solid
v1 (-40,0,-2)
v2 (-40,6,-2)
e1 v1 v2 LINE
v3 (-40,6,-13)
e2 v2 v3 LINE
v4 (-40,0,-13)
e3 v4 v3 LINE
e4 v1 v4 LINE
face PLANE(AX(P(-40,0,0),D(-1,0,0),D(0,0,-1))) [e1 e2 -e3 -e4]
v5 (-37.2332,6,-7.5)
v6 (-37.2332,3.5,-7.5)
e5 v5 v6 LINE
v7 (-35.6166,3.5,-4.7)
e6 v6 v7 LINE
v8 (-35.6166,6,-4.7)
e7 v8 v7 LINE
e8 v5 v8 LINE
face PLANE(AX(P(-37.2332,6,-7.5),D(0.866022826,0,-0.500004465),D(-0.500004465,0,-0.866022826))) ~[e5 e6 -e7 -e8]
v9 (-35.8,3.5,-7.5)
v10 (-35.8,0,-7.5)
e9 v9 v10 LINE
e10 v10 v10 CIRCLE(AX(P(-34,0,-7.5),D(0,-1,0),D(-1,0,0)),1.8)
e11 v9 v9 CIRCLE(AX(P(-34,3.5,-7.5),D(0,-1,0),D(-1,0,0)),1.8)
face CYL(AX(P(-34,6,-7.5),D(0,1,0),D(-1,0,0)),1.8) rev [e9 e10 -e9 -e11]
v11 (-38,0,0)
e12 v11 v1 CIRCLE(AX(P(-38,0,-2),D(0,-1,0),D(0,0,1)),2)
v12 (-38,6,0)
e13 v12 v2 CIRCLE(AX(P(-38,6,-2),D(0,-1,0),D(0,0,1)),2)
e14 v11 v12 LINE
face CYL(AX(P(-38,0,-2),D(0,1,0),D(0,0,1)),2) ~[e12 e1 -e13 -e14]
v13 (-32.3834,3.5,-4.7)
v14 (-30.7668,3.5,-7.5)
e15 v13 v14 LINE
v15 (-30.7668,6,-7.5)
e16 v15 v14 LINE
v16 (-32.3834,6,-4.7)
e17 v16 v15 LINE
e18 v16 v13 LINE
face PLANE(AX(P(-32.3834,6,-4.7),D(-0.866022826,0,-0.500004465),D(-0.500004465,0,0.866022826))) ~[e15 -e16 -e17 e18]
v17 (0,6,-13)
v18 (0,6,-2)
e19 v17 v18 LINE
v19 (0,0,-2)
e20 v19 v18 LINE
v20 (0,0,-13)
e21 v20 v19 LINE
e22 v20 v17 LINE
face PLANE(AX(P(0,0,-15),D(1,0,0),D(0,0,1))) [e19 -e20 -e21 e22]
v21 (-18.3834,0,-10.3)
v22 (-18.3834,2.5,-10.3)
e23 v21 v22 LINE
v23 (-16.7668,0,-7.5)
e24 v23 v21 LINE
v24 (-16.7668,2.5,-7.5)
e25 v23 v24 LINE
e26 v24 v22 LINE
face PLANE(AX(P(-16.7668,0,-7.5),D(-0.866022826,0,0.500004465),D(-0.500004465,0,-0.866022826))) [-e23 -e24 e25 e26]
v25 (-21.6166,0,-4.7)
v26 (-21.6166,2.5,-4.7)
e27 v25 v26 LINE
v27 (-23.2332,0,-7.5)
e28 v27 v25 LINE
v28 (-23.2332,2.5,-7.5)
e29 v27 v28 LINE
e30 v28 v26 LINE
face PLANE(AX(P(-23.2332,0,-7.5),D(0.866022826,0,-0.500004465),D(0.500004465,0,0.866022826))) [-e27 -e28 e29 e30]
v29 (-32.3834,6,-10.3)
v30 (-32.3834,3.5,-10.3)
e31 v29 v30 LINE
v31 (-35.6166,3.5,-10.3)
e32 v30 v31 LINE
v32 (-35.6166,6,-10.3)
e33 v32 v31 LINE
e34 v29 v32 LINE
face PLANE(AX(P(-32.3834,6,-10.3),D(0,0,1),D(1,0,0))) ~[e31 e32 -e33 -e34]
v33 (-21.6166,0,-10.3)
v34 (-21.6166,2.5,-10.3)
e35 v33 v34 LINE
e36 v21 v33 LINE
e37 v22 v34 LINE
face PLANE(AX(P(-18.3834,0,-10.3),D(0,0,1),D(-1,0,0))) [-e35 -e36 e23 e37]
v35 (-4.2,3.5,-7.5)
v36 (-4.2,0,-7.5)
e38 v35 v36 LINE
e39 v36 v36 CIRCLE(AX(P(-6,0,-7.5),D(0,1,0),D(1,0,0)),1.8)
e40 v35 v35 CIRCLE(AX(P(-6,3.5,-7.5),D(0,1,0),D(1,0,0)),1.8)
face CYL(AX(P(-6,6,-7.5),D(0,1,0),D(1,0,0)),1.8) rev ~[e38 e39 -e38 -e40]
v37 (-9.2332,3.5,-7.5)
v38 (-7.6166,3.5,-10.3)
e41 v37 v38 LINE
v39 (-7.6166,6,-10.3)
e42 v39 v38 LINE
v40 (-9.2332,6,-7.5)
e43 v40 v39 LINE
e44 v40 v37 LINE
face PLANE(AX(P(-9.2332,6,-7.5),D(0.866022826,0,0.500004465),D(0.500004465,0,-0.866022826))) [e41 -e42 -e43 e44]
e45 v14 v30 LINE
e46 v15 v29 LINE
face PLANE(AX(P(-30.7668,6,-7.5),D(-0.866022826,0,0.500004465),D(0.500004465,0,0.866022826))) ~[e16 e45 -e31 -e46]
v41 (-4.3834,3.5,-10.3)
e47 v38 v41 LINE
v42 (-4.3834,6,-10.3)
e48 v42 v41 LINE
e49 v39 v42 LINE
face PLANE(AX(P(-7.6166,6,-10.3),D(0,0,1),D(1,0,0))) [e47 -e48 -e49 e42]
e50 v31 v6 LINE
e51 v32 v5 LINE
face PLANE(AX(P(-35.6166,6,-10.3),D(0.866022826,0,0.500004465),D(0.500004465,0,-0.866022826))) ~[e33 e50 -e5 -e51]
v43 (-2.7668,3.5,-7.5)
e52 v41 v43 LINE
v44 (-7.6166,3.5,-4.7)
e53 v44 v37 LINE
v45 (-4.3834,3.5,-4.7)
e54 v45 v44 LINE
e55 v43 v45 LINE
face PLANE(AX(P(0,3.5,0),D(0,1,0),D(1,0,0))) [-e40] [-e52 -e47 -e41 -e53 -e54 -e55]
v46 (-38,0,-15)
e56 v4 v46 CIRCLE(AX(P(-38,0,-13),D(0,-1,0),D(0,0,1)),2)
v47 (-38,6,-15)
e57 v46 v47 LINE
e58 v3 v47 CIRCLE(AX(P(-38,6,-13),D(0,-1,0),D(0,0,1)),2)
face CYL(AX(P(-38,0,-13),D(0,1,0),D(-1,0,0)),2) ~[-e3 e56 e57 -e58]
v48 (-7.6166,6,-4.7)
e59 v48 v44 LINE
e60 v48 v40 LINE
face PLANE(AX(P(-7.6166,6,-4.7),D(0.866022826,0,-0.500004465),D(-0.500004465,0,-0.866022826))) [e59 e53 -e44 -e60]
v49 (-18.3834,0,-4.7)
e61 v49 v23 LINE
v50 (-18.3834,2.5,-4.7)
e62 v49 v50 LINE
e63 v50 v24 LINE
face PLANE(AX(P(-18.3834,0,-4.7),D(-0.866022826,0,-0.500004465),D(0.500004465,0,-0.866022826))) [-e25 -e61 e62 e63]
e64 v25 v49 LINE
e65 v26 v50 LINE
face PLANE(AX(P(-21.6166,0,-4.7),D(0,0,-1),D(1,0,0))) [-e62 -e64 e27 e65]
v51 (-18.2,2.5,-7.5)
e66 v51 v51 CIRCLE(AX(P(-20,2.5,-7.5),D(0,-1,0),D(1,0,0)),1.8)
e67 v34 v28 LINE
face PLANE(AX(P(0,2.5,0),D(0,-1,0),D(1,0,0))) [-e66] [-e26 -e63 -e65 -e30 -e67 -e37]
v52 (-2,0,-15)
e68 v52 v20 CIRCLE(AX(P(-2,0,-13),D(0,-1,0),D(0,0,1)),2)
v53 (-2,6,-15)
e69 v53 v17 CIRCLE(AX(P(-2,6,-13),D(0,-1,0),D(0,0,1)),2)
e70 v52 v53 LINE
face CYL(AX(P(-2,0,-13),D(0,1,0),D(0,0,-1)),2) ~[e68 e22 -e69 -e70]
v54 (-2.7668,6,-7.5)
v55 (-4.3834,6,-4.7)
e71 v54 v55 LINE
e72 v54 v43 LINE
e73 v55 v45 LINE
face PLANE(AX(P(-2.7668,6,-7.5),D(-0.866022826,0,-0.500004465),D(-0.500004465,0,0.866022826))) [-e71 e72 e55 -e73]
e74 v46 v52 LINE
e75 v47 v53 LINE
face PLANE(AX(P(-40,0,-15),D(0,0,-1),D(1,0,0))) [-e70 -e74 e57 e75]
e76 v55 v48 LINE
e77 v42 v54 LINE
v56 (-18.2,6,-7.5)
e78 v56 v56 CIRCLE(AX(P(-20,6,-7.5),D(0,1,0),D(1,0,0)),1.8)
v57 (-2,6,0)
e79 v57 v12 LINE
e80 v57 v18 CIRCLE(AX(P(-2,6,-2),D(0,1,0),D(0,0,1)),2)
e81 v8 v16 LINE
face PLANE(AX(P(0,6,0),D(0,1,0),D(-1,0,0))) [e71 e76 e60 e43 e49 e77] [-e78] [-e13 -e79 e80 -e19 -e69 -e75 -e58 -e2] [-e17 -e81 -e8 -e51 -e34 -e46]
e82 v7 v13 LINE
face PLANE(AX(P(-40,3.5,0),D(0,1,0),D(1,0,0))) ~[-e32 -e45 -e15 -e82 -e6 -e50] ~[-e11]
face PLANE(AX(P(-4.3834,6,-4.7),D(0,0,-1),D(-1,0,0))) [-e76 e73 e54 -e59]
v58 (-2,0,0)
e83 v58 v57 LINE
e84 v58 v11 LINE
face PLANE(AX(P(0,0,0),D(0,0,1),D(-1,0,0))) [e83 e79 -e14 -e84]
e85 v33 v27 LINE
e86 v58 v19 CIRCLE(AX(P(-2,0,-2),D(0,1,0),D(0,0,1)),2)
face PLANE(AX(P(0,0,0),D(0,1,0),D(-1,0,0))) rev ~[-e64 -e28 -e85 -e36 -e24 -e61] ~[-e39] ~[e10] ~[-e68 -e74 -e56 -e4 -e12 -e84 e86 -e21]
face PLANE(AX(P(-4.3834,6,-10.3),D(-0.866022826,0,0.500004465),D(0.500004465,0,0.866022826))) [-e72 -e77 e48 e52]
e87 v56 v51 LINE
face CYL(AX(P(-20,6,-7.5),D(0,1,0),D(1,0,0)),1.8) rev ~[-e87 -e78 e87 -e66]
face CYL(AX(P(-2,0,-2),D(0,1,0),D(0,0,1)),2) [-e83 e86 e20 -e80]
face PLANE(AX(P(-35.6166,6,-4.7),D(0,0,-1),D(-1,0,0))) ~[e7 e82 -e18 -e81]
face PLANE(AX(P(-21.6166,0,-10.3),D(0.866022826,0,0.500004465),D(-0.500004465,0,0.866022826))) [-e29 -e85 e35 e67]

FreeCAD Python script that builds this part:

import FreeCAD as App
import Part
import Sketcher
from FreeCAD import Vector
Q = App.Units.Quantity


def edges_at(feature, points):
    """Names of the edges that pass closest to the given points."""
    edges = feature.Shape.Edges
    near = lambda p: min(range(len(edges)), key=lambda i: edges[i].distToShape(Part.Vertex(*p))[0])
    return sorted({f"Edge{near(p) + 1}" for p in points})

doc = App.newDocument("Part")
params = doc.addObject("Spreadsheet::Sheet", "Params")
for row, (alias, value) in enumerate([
    ("sketch1_width", "40 mm"),
    ("sketch1_height", "15 mm"),
    ("pad1_length", "6 mm"),
    ("fillet_radius", "2 mm"),
    ("sketch2_diameter", "3.6 mm"),
    ("pocket1_length", "6 mm"),
    ("sketch3_diameter", "3.6 mm"),
    ("pocket2_length", "2.5 mm"),
    ("sketch4_diameter", "3.6 mm"),
    ("pocket3_length", "6 mm"),
    ("sketch5_diameter", "3.6 mm"),
    ("pocket4_length", "2.5 mm"),
], start=1):
    params.set(f"A{row}", alias)
    params.set(f"B{row}", "=" + value)
    params.setAlias(f"B{row}", alias)

body = doc.addObject("PartDesign::Body", "Body")

# Sketch on XZ plane
sketch1 = body.newObject("Sketcher::SketchObject", "Sketch")
sketch1.AttachmentSupport = (doc.getObject("XZ_Plane"), [""])
sketch1.MapMode = "FlatFace"
sketch1.addGeometry(Part.LineSegment(Vector(-40, 0, 0), Vector(0, 0, 0)), False)
sketch1.addGeometry(Part.LineSegment(Vector(0, 0, 0), Vector(0, -15, 0)), False)
sketch1.addGeometry(Part.LineSegment(Vector(0, -15, 0), Vector(-40, -15, 0)), False)
sketch1.addGeometry(Part.LineSegment(Vector(-40, -15, 0), Vector(-40, 0, 0)), False)
sketch1.addConstraint(Sketcher.Constraint("Coincident", 0, 2, 1, 1))
sketch1.addConstraint(Sketcher.Constraint("Coincident", 1, 2, 2, 1))
sketch1.addConstraint(Sketcher.Constraint("Coincident", 2, 2, 3, 1))
sketch1.addConstraint(Sketcher.Constraint("Coincident", 3, 2, 0, 1))
sketch1.addConstraint(Sketcher.Constraint("Horizontal", 0))
sketch1.addConstraint(Sketcher.Constraint("Vertical", 1))
sketch1.addConstraint(Sketcher.Constraint("Horizontal", 2))
sketch1.addConstraint(Sketcher.Constraint("Vertical", 3))
sketch1.addConstraint(Sketcher.Constraint("Coincident", 0, 2, -1, 1))
sketch1.addConstraint(Sketcher.Constraint("DistanceX", 0, 1, 0, 2, Q("40 mm")))
sketch1.addConstraint(Sketcher.Constraint("DistanceY", 1, 2, 1, 1, Q("15 mm")))
sketch1.setExpression("Constraints[9]", "Params.sketch1_width")
sketch1.setExpression("Constraints[10]", "Params.sketch1_height")
pad1 = body.newObject("PartDesign::Pad", "Pad")
pad1.Profile = sketch1
pad1.setExpression("Length", "Params.pad1_length")
pad1.Reversed = True
doc.recompute()

fillet = body.newObject("PartDesign::Fillet", "Fillet")
fillet.Base = (pad1, edges_at(pad1, [
    (0, 3, 0),
    (0, 3, -15),
    (-40, 3, -15),
    (-40, 3, 0),
]))
fillet.setExpression("Radius", "Params.fillet_radius")

# Sketch on XZ plane
sketch2 = body.newObject("Sketcher::SketchObject", "Sketch001")
sketch2.AttachmentSupport = (doc.getObject("XZ_Plane"), [""])
sketch2.MapMode = "FlatFace"
sketch2.AttachmentOffset = App.Placement(Vector(0, 0, -6), App.Rotation())
sketch2.addGeometry(Part.Circle(Vector(-6, -7.5, 0), Vector(0, 0, 1), 1.8), False)
sketch2.addConstraint(Sketcher.Constraint("Diameter", 0, Q("3.6 mm")))
sketch2.addConstraint(Sketcher.Constraint("DistanceX", 0, 3, -1, 1, Q("6 mm")))
sketch2.addConstraint(Sketcher.Constraint("DistanceY", 0, 3, -1, 1, Q("7.5 mm")))
sketch2.setExpression("Constraints[0]", "Params.sketch2_diameter")
pocket1 = body.newObject("PartDesign::Pocket", "Pocket")
pocket1.Profile = sketch2
pocket1.setExpression("Length", "Params.pocket1_length")
pocket1.Reversed = True

# Sketch on XZ plane
sketch3 = body.newObject("Sketcher::SketchObject", "Sketch002")
sketch3.AttachmentSupport = (doc.getObject("XZ_Plane"), [""])
sketch3.MapMode = "FlatFace"
sketch3.AttachmentOffset = App.Placement(Vector(0, 0, -6), App.Rotation())
sketch3.addGeometry(Part.LineSegment(Vector(-9.2, -7.5, 0), Vector(-7.6, -4.7, 0)), False)
sketch3.addGeometry(Part.LineSegment(Vector(-7.6, -4.7, 0), Vector(-4.4, -4.7, 0)), False)
sketch3.addGeometry(Part.LineSegment(Vector(-4.4, -4.7, 0), Vector(-2.8, -7.5, 0)), False)
sketch3.addGeometry(Part.LineSegment(Vector(-2.8, -7.5, 0), Vector(-4.4, -10.3, 0)), False)
sketch3.addGeometry(Part.LineSegment(Vector(-4.4, -10.3, 0), Vector(-7.6, -10.3, 0)), False)
sketch3.addGeometry(Part.LineSegment(Vector(-7.6, -10.3, 0), Vector(-9.2, -7.5, 0)), False)
sketch3.addGeometry(Part.Circle(Vector(-6, -7.5, 0), Vector(0, 0, 1), 1.8), False)
sketch3.addConstraint(Sketcher.Constraint("Coincident", 0, 2, 1, 1))
sketch3.addConstraint(Sketcher.Constraint("Coincident", 1, 2, 2, 1))
sketch3.addConstraint(Sketcher.Constraint("Coincident", 2, 2, 3, 1))
sketch3.addConstraint(Sketcher.Constraint("Coincident", 3, 2, 4, 1))
sketch3.addConstraint(Sketcher.Constraint("Coincident", 4, 2, 5, 1))
sketch3.addConstraint(Sketcher.Constraint("Coincident", 5, 2, 0, 1))
sketch3.addConstraint(Sketcher.Constraint("Horizontal", 1))
sketch3.addConstraint(Sketcher.Constraint("Horizontal", 4))
sketch3.addConstraint(Sketcher.Constraint("Parallel", 0, 3))
sketch3.addConstraint(Sketcher.Constraint("Parallel", 2, 5))
sketch3.addConstraint(Sketcher.Constraint("Horizontal", 6, 3, 2, 2))
sketch3.addConstraint(Sketcher.Constraint("Horizontal", 2, 2, 5, 2))
sketch3.addConstraint(Sketcher.Constraint("Vertical", 1, 2, 3, 2))
sketch3.addConstraint(Sketcher.Constraint("Vertical", 0, 2, 4, 2))
sketch3.addConstraint(Sketcher.Constraint("Diameter", 6, Q("3.6 mm")))
sketch3.addConstraint(Sketcher.Constraint("Angle", 0, Q("59.9997 deg")))
sketch3.addConstraint(Sketcher.Constraint("DistanceX", 6, 3, -1, 1, Q("6 mm")))
sketch3.addConstraint(Sketcher.Constraint("DistanceY", 6, 3, -1, 1, Q("7.5 mm")))
sketch3.addConstraint(Sketcher.Constraint("DistanceY", 0, 2, -1, 1, Q("4.7 mm")))
sketch3.addConstraint(Sketcher.Constraint("DistanceX", 1, 1, 1, 2, Q("3.2332 mm")))
sketch3.addConstraint(Sketcher.Constraint("DistanceX", 0, 2, -1, 1, Q("7.6166 mm")))
sketch3.setExpression("Constraints[14]", "Params.sketch3_diameter")
pocket2 = body.newObject("PartDesign::Pocket", "Pocket001")
pocket2.Profile = sketch3
pocket2.setExpression("Length", "Params.pocket2_length")
pocket2.Reversed = True

# Sketch on XZ plane
sketch4 = body.newObject("Sketcher::SketchObject", "Sketch003")
sketch4.AttachmentSupport = (doc.getObject("XZ_Plane"), [""])
sketch4.MapMode = "FlatFace"
sketch4.AttachmentOffset = App.Placement(Vector(0, 0, -6), App.Rotation())
sketch4.addGeometry(Part.Circle(Vector(-20, -7.5, 0), Vector(0, 0, 1), 1.8), False)
sketch4.addConstraint(Sketcher.Constraint("Diameter", 0, Q("3.6 mm")))
sketch4.addConstraint(Sketcher.Constraint("DistanceX", 0, 3, -1, 1, Q("20 mm")))
sketch4.addConstraint(Sketcher.Constraint("DistanceY", 0, 3, -1, 1, Q("7.5 mm")))
sketch4.setExpression("Constraints[0]", "Params.sketch4_diameter")
pocket3 = body.newObject("PartDesign::Pocket", "Pocket002")
pocket3.Profile = sketch4
pocket3.setExpression("Length", "Params.pocket3_length")
pocket3.Reversed = True

# Sketch on XZ plane
sketch5 = body.newObject("Sketcher::SketchObject", "Sketch004")
sketch5.AttachmentSupport = (doc.getObject("XZ_Plane"), [""])
sketch5.MapMode = "FlatFace"
sketch5.addGeometry(Part.LineSegment(Vector(-23.2, -7.5, 0), Vector(-21.6, -10.3, 0)), False)
sketch5.addGeometry(Part.LineSegment(Vector(-21.6, -10.3, 0), Vector(-18.4, -10.3, 0)), False)
sketch5.addGeometry(Part.LineSegment(Vector(-18.4, -10.3, 0), Vector(-16.8, -7.5, 0)), False)
sketch5.addGeometry(Part.LineSegment(Vector(-16.8, -7.5, 0), Vector(-18.4, -4.7, 0)), False)
sketch5.addGeometry(Part.LineSegment(Vector(-18.4, -4.7, 0), Vector(-21.6, -4.7, 0)), False)
sketch5.addGeometry(Part.LineSegment(Vector(-21.6, -4.7, 0), Vector(-23.2, -7.5, 0)), False)
sketch5.addGeometry(Part.Circle(Vector(-20, -7.5, 0), Vector(0, 0, 1), 1.8), False)
sketch5.addConstraint(Sketcher.Constraint("Coincident", 0, 2, 1, 1))
sketch5.addConstraint(Sketcher.Constraint("Coincident", 1, 2, 2, 1))
sketch5.addConstraint(Sketcher.Constraint("Coincident", 2, 2, 3, 1))
sketch5.addConstraint(Sketcher.Constraint("Coincident", 3, 2, 4, 1))
sketch5.addConstraint(Sketcher.Constraint("Coincident", 4, 2, 5, 1))
sketch5.addConstraint(Sketcher.Constraint("Coincident", 5, 2, 0, 1))
sketch5.addConstraint(Sketcher.Constraint("Horizontal", 1))
sketch5.addConstraint(Sketcher.Constraint("Horizontal", 4))
sketch5.addConstraint(Sketcher.Constraint("Parallel", 0, 3))
sketch5.addConstraint(Sketcher.Constraint("Parallel", 2, 5))
sketch5.addConstraint(Sketcher.Constraint("Horizontal", 6, 3, 2, 2))
sketch5.addConstraint(Sketcher.Constraint("Horizontal", 2, 2, 5, 2))
sketch5.addConstraint(Sketcher.Constraint("Vertical", 1, 2, 3, 2))
sketch5.addConstraint(Sketcher.Constraint("Vertical", 0, 2, 4, 2))
sketch5.addConstraint(Sketcher.Constraint("Diameter", 6, Q("3.6 mm")))
sketch5.addConstraint(Sketcher.Constraint("Angle", 0, Q("-59.9997 deg")))
sketch5.addConstraint(Sketcher.Constraint("DistanceX", 6, 3, -1, 1, Q("20 mm")))
sketch5.addConstraint(Sketcher.Constraint("DistanceY", 6, 3, -1, 1, Q("7.5 mm")))
sketch5.addConstraint(Sketcher.Constraint("DistanceY", 0, 2, -1, 1, Q("10.3 mm")))
sketch5.addConstraint(Sketcher.Constraint("DistanceX", 1, 1, 1, 2, Q("3.2332 mm")))
sketch5.addConstraint(Sketcher.Constraint("DistanceX", 0, 2, -1, 1, Q("21.6166 mm")))
sketch5.setExpression("Constraints[14]", "Params.sketch5_diameter")
pocket4 = body.newObject("PartDesign::Pocket", "Pocket003")
pocket4.Profile = sketch5
pocket4.setExpression("Length", "Params.pocket4_length")
doc.recompute()

datumplane = body.newObject("PartDesign::Plane", "DatumPlane")
datumplane.AttachmentSupport = (doc.getObject("YZ_Plane"), [""])
datumplane.MapMode = "FlatFace"
datumplane.AttachmentOffset = App.Placement(Vector(0, 0, -20), App.Rotation())
mirrored = body.newObject("PartDesign::Mirrored", "Mirrored")
mirrored.Originals = [pocket1]
mirrored.MirrorPlane = (datumplane, [""])
body.Tip = mirrored
doc.recompute()

datumplane2 = body.newObject("PartDesign::Plane", "DatumPlane001")
datumplane2.AttachmentSupport = (doc.getObject("YZ_Plane"), [""])
datumplane2.MapMode = "FlatFace"
datumplane2.AttachmentOffset = App.Placement(Vector(0, 0, -20), App.Rotation())
mirrored2 = body.newObject("PartDesign::Mirrored", "Mirrored001")
mirrored2.Originals = [pocket2]
mirrored2.MirrorPlane = (datumplane2, [""])
body.Tip = mirrored2

doc.recompute()
